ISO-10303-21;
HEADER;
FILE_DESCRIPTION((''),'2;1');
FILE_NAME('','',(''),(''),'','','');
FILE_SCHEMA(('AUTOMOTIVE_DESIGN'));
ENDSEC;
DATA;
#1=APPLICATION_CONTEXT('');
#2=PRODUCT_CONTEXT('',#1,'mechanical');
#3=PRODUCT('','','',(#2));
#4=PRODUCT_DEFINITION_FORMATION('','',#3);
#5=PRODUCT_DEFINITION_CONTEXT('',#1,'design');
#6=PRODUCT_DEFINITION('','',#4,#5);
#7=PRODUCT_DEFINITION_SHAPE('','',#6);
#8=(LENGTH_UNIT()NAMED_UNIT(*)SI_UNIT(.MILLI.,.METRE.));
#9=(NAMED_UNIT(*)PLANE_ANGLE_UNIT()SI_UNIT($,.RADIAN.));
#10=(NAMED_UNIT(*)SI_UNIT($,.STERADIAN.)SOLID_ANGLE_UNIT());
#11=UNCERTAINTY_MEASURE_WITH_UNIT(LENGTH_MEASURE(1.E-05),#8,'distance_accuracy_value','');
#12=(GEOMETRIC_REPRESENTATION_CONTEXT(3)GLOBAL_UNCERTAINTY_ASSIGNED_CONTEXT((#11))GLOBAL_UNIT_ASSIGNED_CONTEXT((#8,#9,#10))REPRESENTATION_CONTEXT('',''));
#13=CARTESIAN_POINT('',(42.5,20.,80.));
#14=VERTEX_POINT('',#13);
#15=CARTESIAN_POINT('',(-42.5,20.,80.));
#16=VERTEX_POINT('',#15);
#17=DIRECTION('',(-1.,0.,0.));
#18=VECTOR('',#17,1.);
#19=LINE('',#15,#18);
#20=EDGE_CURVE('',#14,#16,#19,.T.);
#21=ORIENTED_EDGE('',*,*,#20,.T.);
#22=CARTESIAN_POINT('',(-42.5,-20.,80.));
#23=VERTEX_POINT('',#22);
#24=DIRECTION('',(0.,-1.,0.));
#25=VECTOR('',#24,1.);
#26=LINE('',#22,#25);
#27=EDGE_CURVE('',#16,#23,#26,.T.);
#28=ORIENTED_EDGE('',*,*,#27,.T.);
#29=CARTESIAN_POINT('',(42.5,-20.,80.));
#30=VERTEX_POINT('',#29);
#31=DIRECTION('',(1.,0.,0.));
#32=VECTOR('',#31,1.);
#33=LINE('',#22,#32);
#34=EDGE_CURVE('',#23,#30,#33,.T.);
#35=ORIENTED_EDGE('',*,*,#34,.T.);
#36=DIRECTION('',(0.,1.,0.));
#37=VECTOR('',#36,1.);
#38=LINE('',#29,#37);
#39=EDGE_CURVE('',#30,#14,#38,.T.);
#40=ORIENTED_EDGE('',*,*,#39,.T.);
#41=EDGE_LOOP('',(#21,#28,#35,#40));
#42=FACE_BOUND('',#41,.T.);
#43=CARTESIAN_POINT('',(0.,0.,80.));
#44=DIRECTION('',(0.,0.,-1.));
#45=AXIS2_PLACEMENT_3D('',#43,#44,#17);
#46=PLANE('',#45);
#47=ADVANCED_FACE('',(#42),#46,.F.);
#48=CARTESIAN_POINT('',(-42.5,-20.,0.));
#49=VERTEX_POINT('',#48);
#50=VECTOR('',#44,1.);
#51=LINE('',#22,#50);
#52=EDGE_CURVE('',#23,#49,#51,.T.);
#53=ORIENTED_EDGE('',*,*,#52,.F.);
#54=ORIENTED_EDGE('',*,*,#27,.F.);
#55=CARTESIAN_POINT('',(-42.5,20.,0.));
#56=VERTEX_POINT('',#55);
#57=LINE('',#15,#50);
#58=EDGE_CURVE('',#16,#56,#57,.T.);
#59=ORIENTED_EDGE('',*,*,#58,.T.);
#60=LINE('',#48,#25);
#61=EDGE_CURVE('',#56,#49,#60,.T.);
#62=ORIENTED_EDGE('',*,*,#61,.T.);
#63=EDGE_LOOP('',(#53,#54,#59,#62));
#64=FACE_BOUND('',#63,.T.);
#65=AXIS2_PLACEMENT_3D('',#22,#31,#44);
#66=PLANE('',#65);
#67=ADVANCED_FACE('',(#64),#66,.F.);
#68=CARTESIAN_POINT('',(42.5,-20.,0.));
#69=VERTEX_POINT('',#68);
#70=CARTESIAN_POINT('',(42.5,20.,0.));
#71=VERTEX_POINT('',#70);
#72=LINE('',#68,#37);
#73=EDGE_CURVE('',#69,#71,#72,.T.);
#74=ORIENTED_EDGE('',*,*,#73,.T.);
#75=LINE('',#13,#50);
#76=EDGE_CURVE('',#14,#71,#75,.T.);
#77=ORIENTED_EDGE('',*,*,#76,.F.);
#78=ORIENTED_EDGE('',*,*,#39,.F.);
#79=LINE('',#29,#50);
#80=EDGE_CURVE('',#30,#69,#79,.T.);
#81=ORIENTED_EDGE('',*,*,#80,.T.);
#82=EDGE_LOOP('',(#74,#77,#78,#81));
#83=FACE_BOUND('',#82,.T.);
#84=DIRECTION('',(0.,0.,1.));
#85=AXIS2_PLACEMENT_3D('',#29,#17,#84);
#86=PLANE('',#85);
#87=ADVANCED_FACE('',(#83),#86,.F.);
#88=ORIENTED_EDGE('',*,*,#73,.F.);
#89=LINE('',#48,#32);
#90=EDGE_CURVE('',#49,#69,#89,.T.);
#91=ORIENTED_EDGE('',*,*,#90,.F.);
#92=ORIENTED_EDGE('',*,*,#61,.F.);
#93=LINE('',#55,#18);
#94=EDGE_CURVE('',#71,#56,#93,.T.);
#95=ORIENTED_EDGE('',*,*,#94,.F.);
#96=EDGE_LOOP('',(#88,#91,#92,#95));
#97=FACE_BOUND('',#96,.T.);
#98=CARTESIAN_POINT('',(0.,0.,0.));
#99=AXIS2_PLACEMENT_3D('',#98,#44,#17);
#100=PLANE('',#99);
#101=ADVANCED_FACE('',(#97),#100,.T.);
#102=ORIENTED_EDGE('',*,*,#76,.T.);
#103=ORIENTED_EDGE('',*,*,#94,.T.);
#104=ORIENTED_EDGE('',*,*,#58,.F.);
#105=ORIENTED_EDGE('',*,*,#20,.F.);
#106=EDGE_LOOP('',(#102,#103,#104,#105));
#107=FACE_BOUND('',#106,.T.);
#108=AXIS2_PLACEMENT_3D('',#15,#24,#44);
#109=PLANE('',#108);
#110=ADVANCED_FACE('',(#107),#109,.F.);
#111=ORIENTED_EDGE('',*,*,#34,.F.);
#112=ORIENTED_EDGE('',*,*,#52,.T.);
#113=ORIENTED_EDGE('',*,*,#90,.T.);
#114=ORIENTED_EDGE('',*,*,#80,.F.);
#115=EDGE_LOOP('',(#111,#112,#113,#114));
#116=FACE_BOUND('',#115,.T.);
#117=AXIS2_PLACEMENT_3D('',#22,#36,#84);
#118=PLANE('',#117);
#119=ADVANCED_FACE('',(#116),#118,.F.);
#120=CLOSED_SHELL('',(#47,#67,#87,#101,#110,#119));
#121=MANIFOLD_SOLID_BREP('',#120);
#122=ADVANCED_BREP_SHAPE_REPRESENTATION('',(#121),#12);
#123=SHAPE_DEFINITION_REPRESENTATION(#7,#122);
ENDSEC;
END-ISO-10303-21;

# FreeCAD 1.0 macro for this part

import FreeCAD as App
import Part
import Sketcher
from FreeCAD import Vector

doc = App.newDocument("Part")
body = doc.addObject("PartDesign::Body", "Body")

# Sketch on XY plane
sketch1 = body.newObject("Sketcher::SketchObject", "Sketch")
sketch1.AttachmentSupport = (doc.getObject("XY_Plane"), [""])
sketch1.MapMode = "FlatFace"
sketch1.addGeometry([
    Part.LineSegment(Vector(-42, 20, 0), Vector(-42, -20, 0)),
    Part.LineSegment(Vector(-42, -20, 0), Vector(42, -20, 0)),
    Part.LineSegment(Vector(42, -20, 0), Vector(42, 20, 0)),
    Part.LineSegment(Vector(42, 20, 0), Vector(-42, 20, 0)),
], False)
sketch1.addConstraint([
    Sketcher.Constraint("Coincident", 0, 2, 1, 1),
    Sketcher.Constraint("Coincident", 1, 2, 2, 1),
    Sketcher.Constraint("Coincident", 2, 2, 3, 1),
    Sketcher.Constraint("Coincident", 3, 2, 0, 1),
    Sketcher.Constraint("Vertical", 0),
    Sketcher.Constraint("Horizontal", 1),
    Sketcher.Constraint("Vertical", 2),
    Sketcher.Constraint("Horizontal", 3),
    Sketcher.Constraint("Symmetric", 0, 2, 2, 2, -1, 1),
    Sketcher.Constraint("DistanceX", 1, 1, 1, 2, 85.0),
    Sketcher.Constraint("DistanceY", 0, 2, 0, 1, 40.0),
])
pad1 = body.newObject("PartDesign::Pad", "Pad")
pad1.Profile = sketch1
pad1.Length = 80

doc.recompute()
